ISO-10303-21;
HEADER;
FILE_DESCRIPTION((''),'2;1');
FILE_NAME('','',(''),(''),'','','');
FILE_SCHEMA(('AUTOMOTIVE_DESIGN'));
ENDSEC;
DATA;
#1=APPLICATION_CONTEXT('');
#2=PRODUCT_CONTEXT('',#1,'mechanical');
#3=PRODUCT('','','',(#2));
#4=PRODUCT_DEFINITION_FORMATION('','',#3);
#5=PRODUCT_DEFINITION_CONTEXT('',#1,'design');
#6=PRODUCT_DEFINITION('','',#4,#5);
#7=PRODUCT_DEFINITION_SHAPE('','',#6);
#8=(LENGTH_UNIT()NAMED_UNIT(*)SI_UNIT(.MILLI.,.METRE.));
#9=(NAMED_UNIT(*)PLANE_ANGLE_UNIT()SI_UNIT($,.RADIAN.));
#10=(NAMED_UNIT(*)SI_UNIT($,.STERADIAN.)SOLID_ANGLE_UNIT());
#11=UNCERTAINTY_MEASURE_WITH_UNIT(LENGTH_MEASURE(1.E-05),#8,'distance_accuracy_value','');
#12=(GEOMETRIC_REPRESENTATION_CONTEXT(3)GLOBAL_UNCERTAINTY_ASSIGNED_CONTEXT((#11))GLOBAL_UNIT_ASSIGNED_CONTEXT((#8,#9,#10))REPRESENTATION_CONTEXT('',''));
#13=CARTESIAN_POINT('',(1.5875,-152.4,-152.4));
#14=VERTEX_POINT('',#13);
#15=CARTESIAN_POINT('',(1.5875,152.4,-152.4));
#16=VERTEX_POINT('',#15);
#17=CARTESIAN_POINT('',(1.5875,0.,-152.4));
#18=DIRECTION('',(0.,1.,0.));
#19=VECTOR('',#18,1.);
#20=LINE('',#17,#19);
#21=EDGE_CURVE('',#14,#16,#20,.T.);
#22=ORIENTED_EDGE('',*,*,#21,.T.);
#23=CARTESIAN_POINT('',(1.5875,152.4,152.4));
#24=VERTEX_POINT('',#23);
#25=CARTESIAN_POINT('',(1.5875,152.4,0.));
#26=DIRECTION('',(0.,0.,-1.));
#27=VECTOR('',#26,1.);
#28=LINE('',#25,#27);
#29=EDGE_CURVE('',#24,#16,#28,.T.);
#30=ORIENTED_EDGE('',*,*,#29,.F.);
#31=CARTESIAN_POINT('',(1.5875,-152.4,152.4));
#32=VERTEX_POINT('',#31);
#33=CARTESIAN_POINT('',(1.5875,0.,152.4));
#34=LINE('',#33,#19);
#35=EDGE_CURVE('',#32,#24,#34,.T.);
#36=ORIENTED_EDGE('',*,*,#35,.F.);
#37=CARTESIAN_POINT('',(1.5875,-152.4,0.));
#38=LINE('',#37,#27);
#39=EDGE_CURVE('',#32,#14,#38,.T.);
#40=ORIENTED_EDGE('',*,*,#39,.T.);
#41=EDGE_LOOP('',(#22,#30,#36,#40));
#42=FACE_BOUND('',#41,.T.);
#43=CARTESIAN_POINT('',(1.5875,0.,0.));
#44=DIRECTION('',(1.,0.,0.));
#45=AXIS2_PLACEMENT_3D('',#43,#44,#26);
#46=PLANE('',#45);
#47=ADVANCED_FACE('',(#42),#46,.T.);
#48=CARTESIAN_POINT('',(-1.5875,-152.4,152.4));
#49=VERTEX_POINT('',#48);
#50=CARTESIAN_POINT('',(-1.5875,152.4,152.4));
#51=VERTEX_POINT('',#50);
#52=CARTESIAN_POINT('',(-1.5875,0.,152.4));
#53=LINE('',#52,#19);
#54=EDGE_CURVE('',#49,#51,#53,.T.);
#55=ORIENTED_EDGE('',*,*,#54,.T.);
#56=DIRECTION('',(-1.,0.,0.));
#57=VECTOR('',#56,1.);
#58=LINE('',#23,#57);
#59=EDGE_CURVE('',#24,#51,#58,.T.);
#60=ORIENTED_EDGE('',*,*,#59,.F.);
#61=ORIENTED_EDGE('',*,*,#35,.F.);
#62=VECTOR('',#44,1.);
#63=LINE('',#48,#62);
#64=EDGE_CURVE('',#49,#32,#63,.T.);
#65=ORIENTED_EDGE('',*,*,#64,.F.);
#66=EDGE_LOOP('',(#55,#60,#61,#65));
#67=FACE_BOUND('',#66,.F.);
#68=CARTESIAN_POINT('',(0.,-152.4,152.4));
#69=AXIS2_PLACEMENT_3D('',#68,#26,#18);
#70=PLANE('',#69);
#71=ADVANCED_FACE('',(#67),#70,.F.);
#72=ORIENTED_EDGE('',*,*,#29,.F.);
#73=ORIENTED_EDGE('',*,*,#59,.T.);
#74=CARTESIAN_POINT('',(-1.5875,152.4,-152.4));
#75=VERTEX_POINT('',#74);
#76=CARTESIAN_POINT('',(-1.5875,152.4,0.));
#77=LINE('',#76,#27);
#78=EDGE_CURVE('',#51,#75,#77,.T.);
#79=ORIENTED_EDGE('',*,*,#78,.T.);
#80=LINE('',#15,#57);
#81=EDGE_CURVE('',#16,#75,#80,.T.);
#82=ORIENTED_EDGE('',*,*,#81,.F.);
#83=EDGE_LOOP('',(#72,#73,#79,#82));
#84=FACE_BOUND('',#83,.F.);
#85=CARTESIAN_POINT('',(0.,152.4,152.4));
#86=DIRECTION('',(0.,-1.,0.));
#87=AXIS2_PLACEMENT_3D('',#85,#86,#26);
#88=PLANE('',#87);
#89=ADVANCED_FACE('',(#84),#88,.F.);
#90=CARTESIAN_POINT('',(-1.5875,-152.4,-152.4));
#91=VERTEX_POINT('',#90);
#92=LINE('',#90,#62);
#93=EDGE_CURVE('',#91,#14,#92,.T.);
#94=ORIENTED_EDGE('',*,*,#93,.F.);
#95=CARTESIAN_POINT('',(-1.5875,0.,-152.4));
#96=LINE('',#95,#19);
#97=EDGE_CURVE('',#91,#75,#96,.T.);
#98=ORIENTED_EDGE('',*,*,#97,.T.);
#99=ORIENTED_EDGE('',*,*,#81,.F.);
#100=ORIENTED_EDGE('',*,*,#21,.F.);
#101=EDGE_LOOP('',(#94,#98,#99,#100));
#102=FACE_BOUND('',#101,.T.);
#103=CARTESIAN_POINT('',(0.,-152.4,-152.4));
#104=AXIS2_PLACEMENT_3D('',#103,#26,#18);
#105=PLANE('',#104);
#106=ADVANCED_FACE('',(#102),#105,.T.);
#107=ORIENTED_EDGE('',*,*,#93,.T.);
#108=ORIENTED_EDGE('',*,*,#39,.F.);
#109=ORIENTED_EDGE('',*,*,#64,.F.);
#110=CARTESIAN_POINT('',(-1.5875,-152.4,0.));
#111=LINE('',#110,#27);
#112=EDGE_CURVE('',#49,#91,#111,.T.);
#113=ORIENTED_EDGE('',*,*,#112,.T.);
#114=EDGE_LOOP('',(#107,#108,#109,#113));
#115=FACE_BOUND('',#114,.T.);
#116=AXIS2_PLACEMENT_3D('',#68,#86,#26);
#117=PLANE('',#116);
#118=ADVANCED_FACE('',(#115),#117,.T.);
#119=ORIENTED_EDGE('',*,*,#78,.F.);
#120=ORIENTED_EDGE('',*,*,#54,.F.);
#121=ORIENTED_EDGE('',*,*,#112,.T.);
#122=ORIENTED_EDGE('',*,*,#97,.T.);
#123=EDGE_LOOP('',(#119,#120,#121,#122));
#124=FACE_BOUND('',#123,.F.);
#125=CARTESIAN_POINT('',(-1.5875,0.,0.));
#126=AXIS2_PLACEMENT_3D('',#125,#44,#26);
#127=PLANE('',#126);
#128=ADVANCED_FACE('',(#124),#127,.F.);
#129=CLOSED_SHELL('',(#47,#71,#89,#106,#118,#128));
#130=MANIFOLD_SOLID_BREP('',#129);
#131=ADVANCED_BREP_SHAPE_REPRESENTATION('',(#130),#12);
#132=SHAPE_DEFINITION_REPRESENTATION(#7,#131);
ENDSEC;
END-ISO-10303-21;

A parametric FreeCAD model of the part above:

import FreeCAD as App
import Part
import Sketcher
Q = App.Units.Quantity

doc = App.newDocument("Part")
body = doc.addObject("PartDesign::Body", "Body")

# Sketch on YZ plane
sketch1 = doc.addObject("Sketcher::SketchObject", "Sketch")
body.addObject(sketch1)
sketch1.AttachmentSupport = (doc.YZ_Plane, [""])
sketch1.MapMode = "FlatFace"
sketch1.addGeometry([
    Part.LineSegment(App.Vector(152.4, 152.4, 0), App.Vector(-152.4, 152.4, 0)),
    Part.LineSegment(App.Vector(-152.4, 152.4, 0), App.Vector(-152.4, -152.4, 0)),
    Part.LineSegment(App.Vector(-152.4, -152.4, 0), App.Vector(152.4, -152.4, 0)),
    Part.LineSegment(App.Vector(152.4, -152.4, 0), App.Vector(152.4, 152.4, 0)),
], False)
sketch1.addConstraint([
    Sketcher.Constraint("Coincident", 0, 2, 1, 1),
    Sketcher.Constraint("Coincident", 1, 2, 2, 1),
    Sketcher.Constraint("Coincident", 2, 2, 3, 1),
    Sketcher.Constraint("Coincident", 3, 2, 0, 1),
    Sketcher.Constraint("Horizontal", 0),
    Sketcher.Constraint("Vertical", 1),
    Sketcher.Constraint("Horizontal", 2),
    Sketcher.Constraint("Vertical", 3),
    Sketcher.Constraint("Symmetric", 0, 2, 2, 2, -1, 1),
    Sketcher.Constraint("Equal", 2, 1),
    Sketcher.Constraint("DistanceX", 0, 2, 0, 1, Q("12 in")),
])
pad1 = doc.addObject("PartDesign::Pad", "Pad")
body.addObject(pad1)
pad1.Profile = sketch1
pad1.Length = Q("0.125 in")
pad1.Midplane = True

doc.recompute()
